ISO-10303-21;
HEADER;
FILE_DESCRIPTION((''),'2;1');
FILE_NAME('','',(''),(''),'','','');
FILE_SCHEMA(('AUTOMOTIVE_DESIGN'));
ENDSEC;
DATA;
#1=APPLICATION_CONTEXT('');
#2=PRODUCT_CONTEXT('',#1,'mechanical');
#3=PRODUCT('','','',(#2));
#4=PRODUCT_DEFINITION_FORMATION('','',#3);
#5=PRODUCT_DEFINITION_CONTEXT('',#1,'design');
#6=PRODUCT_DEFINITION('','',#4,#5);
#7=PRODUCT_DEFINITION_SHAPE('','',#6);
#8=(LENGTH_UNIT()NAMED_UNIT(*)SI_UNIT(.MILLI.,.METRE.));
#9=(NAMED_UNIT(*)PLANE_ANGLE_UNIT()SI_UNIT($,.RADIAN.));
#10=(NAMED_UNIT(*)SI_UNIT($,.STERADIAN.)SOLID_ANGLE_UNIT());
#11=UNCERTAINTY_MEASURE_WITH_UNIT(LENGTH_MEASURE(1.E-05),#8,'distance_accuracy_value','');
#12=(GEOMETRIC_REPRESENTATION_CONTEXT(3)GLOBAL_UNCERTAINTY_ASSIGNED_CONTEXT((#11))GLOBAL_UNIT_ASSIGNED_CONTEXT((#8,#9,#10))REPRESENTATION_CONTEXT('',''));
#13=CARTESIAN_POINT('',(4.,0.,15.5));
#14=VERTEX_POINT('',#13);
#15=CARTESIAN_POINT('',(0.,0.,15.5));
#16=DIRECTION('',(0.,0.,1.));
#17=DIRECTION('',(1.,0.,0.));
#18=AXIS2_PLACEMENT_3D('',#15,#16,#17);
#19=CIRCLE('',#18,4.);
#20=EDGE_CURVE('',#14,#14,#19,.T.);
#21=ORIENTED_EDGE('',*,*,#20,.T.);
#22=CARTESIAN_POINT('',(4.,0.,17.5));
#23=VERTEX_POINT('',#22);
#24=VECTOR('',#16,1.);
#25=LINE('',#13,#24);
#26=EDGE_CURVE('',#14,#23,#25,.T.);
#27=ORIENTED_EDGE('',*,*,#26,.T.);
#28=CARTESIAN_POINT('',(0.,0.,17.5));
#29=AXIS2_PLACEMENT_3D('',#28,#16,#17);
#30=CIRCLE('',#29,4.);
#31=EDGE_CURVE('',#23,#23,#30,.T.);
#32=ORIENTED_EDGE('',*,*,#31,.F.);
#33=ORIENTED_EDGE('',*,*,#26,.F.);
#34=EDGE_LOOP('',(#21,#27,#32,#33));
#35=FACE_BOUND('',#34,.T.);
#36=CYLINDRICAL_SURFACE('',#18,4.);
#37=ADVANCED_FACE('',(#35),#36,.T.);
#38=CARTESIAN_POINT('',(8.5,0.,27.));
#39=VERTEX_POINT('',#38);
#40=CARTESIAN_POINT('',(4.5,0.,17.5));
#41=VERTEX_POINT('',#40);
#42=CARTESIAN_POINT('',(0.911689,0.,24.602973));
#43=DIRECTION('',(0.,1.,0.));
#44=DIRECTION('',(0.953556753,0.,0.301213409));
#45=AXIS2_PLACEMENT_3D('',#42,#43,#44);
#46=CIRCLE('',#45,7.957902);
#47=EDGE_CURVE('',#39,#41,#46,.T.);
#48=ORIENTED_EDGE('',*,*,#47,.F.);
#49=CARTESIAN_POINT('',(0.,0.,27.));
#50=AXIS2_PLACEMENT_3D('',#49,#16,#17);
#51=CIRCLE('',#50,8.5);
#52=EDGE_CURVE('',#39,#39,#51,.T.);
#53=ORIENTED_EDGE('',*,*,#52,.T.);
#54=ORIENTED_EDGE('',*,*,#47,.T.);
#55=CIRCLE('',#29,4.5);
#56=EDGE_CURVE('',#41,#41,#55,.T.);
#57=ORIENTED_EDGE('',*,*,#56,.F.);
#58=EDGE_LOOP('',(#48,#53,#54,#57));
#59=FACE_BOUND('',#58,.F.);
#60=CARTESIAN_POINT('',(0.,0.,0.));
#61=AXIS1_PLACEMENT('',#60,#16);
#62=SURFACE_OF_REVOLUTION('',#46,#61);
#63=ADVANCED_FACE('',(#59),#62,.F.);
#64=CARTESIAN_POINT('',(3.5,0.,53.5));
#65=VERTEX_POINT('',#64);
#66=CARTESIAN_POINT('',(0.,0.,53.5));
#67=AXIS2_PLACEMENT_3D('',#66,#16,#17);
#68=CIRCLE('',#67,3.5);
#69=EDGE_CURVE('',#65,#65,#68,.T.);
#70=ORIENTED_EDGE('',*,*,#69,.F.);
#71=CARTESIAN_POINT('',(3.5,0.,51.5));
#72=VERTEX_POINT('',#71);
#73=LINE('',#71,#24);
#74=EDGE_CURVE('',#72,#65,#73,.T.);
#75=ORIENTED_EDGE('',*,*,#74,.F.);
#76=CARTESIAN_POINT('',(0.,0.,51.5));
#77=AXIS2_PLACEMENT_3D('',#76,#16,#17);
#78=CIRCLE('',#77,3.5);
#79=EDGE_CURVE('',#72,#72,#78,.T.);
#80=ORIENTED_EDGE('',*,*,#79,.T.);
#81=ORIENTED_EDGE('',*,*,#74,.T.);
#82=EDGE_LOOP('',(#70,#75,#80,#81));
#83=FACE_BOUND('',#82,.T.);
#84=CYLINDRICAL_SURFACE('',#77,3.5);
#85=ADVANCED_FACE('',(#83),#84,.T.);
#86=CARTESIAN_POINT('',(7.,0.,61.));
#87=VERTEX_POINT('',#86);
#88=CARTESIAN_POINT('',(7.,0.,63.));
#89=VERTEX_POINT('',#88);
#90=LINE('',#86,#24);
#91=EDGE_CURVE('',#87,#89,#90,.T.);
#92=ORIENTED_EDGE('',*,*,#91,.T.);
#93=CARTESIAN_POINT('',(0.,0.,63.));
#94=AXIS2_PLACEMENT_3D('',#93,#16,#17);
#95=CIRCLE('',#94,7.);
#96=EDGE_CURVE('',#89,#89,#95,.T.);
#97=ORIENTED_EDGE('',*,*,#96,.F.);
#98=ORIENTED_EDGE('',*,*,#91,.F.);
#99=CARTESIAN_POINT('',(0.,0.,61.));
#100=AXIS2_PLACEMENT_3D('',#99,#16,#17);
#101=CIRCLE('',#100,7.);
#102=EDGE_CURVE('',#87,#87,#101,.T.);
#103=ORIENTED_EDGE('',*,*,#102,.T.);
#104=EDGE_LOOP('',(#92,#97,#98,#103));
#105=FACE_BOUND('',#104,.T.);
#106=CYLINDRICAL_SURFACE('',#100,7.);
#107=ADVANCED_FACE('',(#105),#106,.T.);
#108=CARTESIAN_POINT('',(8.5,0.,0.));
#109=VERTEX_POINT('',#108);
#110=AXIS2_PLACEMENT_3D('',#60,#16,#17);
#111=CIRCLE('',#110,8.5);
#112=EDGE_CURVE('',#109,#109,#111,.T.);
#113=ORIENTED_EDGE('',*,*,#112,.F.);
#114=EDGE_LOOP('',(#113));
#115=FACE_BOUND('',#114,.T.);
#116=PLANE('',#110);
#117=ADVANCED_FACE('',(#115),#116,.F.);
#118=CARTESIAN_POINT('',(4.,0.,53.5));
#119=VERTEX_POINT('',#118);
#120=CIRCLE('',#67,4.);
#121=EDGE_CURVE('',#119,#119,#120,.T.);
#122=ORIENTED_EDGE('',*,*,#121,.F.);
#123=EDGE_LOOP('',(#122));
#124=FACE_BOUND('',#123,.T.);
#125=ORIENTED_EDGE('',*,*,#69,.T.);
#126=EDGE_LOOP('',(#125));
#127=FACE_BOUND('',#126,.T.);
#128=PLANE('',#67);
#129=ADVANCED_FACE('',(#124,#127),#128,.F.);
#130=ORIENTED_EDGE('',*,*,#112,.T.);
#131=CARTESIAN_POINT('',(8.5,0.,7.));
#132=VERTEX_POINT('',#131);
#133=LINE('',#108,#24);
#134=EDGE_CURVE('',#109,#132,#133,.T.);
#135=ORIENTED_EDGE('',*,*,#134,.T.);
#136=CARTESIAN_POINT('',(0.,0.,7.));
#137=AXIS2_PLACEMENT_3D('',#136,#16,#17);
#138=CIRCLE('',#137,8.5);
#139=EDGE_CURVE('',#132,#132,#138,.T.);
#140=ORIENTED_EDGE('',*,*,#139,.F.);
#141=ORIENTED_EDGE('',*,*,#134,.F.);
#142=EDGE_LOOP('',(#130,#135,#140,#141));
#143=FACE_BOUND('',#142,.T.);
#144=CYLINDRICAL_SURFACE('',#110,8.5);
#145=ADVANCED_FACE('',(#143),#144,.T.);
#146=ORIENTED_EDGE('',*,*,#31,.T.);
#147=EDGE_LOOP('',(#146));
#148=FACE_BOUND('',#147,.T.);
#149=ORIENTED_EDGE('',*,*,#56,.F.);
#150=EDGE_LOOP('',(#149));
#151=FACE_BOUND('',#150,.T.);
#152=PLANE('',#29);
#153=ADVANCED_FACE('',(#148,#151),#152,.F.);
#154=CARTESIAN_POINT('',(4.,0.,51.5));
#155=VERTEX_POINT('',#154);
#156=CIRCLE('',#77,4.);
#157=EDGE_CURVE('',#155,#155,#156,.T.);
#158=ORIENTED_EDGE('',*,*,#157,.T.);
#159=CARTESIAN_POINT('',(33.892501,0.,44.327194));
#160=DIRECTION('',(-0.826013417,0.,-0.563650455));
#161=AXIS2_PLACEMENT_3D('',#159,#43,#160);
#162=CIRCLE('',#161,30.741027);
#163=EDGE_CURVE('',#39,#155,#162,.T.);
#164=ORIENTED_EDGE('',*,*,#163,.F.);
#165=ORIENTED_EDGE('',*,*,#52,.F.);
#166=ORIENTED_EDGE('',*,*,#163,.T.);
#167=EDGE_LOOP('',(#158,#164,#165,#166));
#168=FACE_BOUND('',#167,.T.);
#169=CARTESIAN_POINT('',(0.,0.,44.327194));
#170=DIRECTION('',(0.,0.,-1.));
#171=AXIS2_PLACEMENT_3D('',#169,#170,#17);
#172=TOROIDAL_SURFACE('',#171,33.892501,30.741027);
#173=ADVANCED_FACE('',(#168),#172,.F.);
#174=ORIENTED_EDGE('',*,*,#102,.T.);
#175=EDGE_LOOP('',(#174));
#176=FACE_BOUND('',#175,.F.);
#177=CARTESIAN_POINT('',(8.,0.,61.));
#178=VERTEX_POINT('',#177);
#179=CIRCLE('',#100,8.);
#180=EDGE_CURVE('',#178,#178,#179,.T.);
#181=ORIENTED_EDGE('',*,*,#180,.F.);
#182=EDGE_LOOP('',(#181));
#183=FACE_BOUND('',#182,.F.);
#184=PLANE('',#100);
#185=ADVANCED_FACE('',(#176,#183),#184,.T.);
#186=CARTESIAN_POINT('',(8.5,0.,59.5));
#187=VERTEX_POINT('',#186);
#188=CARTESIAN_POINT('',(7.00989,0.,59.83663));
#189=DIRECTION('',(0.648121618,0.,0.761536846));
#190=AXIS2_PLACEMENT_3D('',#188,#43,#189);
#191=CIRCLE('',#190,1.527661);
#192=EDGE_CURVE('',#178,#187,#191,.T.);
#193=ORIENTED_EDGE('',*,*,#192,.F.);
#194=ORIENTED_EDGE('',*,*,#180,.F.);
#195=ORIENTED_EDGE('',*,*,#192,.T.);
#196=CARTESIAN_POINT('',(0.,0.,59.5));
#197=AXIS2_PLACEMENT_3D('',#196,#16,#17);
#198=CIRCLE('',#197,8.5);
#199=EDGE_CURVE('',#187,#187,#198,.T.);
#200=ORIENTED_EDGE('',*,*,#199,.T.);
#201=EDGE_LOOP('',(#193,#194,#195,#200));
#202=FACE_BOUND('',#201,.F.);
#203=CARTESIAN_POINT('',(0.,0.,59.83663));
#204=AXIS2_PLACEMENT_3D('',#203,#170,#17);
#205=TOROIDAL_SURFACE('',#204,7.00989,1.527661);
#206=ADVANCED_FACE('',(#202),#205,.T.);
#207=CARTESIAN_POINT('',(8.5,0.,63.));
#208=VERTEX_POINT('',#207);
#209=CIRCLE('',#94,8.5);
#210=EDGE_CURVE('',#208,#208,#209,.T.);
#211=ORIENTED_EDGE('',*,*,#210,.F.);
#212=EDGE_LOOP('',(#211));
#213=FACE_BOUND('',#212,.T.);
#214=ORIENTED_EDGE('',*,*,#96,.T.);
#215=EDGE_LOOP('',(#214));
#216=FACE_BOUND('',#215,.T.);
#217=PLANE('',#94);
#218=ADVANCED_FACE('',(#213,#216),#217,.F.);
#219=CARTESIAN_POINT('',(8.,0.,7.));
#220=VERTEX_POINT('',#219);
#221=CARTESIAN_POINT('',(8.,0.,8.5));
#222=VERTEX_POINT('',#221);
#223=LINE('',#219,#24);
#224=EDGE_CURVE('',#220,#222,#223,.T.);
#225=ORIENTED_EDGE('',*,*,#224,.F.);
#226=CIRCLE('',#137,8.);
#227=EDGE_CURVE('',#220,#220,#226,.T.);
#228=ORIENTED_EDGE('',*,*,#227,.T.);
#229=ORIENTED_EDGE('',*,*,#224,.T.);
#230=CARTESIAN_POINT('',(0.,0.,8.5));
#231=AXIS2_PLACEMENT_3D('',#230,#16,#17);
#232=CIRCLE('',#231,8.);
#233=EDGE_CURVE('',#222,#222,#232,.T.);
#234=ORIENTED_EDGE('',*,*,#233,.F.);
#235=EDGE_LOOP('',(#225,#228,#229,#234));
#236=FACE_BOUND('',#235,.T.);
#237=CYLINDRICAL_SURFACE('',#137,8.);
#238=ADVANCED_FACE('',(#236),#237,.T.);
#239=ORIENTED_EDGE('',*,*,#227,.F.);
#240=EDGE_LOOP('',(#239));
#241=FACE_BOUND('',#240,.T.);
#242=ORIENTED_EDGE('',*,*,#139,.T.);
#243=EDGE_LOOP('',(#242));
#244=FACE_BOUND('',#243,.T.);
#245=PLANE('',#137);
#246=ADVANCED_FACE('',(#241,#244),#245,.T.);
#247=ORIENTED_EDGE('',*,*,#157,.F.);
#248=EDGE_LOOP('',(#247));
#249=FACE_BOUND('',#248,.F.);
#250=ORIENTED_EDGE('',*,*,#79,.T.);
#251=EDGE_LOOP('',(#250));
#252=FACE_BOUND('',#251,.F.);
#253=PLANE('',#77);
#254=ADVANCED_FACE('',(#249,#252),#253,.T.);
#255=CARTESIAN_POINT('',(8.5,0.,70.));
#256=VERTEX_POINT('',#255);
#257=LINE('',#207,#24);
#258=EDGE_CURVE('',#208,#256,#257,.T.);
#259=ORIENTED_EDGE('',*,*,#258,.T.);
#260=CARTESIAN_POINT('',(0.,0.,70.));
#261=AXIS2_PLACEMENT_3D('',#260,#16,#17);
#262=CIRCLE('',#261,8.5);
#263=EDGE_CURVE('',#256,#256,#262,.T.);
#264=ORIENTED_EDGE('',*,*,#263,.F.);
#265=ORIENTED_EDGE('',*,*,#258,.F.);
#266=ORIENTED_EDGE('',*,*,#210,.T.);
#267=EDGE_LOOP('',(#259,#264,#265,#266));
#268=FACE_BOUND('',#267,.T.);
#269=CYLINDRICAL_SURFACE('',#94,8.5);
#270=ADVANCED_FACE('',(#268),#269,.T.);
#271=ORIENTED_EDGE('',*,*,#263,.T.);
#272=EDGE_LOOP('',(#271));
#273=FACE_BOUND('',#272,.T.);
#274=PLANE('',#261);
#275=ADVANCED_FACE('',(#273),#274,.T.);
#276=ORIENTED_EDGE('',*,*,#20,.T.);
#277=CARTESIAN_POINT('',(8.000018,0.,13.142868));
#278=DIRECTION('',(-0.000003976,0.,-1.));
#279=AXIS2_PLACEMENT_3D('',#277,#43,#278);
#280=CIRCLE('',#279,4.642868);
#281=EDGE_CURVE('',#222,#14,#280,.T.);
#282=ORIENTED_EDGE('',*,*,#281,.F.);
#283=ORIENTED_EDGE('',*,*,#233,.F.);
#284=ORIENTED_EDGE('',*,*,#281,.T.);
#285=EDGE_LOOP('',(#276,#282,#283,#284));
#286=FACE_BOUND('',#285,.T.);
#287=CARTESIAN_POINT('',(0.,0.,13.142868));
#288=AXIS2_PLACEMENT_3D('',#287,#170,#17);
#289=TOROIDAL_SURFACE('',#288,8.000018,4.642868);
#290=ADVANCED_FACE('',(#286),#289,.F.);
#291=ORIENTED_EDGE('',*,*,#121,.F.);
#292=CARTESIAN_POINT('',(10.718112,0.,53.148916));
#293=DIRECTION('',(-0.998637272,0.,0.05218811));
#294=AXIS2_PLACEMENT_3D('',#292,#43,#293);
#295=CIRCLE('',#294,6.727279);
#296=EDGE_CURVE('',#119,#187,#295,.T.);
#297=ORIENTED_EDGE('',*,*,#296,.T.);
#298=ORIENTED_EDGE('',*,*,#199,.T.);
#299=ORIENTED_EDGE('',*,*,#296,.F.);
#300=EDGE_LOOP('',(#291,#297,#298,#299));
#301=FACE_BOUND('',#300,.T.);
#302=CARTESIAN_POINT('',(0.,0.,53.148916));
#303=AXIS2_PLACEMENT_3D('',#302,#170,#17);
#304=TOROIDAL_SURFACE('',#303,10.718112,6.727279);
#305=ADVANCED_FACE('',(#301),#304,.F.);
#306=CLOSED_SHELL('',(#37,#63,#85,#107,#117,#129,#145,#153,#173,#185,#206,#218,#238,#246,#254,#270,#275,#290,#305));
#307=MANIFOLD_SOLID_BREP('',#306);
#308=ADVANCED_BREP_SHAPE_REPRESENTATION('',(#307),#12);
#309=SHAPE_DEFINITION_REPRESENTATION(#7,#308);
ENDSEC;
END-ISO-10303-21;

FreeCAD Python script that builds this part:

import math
import FreeCAD as App
import Part
import Sketcher
from FreeCAD import Vector
Q = App.Units.Quantity

doc = App.newDocument("Part")
body = doc.addObject("PartDesign::Body", "Body")

# Sketch on XZ plane
sketch1 = body.newObject("Sketcher::SketchObject", "Sketch")
sketch1.AttachmentSupport = (doc.getObject("XZ_Plane"), [""])
sketch1.MapMode = "FlatFace"
sketch1.addGeometry([
    Part.LineSegment(Vector(8.5, 0, 0), Vector(0, 0, 0)),  # 0
    Part.LineSegment(Vector(0, 0, 0), Vector(0, 70, 0)),  # 1
    Part.LineSegment(Vector(0, 70, 0), Vector(8.5, 70, 0)),  # 2
    Part.LineSegment(Vector(8.5, 70, 0), Vector(8.5, 63, 0)),  # 3
    Part.LineSegment(Vector(8.5, 63, 0), Vector(7, 63, 0)),  # 4
    Part.LineSegment(Vector(7, 63, 0), Vector(7, 61, 0)),  # 5
    Part.LineSegment(Vector(7, 61, 0), Vector(8, 61, 0)),  # 6
    Part.ArcOfCircle(Part.Circle(Vector(7.0099, 59.8366, 0), Vector(0, 0, 1), 1.527677), math.radians(-12.728958), math.radians(49.600886)),  # 7
    Part.ArcOfCircle(Part.Circle(Vector(10.7181, 53.1489, 0), Vector(0, 0, 1), 6.727268), math.radians(109.251581), math.radians(177.008341)),  # 8
    Part.LineSegment(Vector(4, 53.5, 0), Vector(3.5, 53.5, 0)),  # 9
    Part.LineSegment(Vector(3.5, 53.5, 0), Vector(3.5, 51.5, 0)),  # 10
    Part.LineSegment(Vector(3.5, 51.5, 0), Vector(4, 51.5, 0)),  # 11
    Part.ArcOfCircle(Part.Circle(Vector(33.8925, 44.3272, 0), Vector(0, 0, 1), 30.74103), math.radians(166.506804), math.radians(214.308639)),  # 12
    Part.ArcOfCircle(Part.Circle(Vector(0.9117, 24.603, 0), Vector(0, 0, 1), 7.957883), math.radians(-63.197966), math.radians(17.530338)),  # 13
    Part.LineSegment(Vector(4.5, 17.5, 0), Vector(4, 17.5, 0)),  # 14
    Part.LineSegment(Vector(4, 17.5, 0), Vector(4, 15.5, 0)),  # 15
    Part.ArcOfCircle(Part.Circle(Vector(8, 13.1429, 0), Vector(0, 0, 1), 4.6429), math.radians(149.490218), math.radians(270)),  # 16
    Part.LineSegment(Vector(8, 8.5, 0), Vector(8, 7, 0)),  # 17
    Part.LineSegment(Vector(8, 7, 0), Vector(8.5, 7, 0)),  # 18
    Part.LineSegment(Vector(8.5, 7, 0), Vector(8.5, 0, 0)),  # 19
], False)
sketch1.addConstraint([
    Sketcher.Constraint("Coincident", 0, 2, 1, 1),
    Sketcher.Constraint("Coincident", 1, 2, 2, 1),
    Sketcher.Constraint("Coincident", 2, 2, 3, 1),
    Sketcher.Constraint("Coincident", 3, 2, 4, 1),
    Sketcher.Constraint("Coincident", 4, 2, 5, 1),
    Sketcher.Constraint("Coincident", 5, 2, 6, 1),
    Sketcher.Constraint("Coincident", 6, 2, 7, 2),
    Sketcher.Constraint("Coincident", 7, 1, 8, 1),
    Sketcher.Constraint("Coincident", 8, 2, 9, 1),
    Sketcher.Constraint("Coincident", 9, 2, 10, 1),
    Sketcher.Constraint("Coincident", 10, 2, 11, 1),
    Sketcher.Constraint("Coincident", 11, 2, 12, 1),
    Sketcher.Constraint("Coincident", 12, 2, 13, 2),
    Sketcher.Constraint("Coincident", 13, 1, 14, 1),
    Sketcher.Constraint("Coincident", 14, 2, 15, 1),
    Sketcher.Constraint("Coincident", 15, 2, 16, 1),
    Sketcher.Constraint("Coincident", 16, 2, 17, 1),
    Sketcher.Constraint("Coincident", 17, 2, 18, 1),
    Sketcher.Constraint("Coincident", 18, 2, 19, 1),
    Sketcher.Constraint("Coincident", 19, 2, 0, 1),
    Sketcher.Constraint("Horizontal", 0),
    Sketcher.Constraint("Vertical", 1),
    Sketcher.Constraint("Horizontal", 2),
    Sketcher.Constraint("Vertical", 3),
    Sketcher.Constraint("Horizontal", 4),
    Sketcher.Constraint("Vertical", 5),
    Sketcher.Constraint("Horizontal", 6),
    Sketcher.Constraint("Horizontal", 9),
    Sketcher.Constraint("Vertical", 10),
    Sketcher.Constraint("Horizontal", 11),
    Sketcher.Constraint("Horizontal", 14),
    Sketcher.Constraint("Vertical", 15),
    Sketcher.Constraint("Vertical", 17),
    Sketcher.Constraint("Horizontal", 18),
    Sketcher.Constraint("Vertical", 19),
    Sketcher.Constraint("Coincident", 0, 2, -1, 1),
    Sketcher.Constraint("Vertical", 16, 3, 6, 2),
    Sketcher.Constraint("Vertical", 3, 2, 7, 1),
    Sketcher.Constraint("Vertical", 8, 2, 11, 2),
    Sketcher.Constraint("Vertical", 7, 1, 12, 2),
    Sketcher.Constraint("Vertical", 11, 2, 14, 2),
    Sketcher.Constraint("Vertical", 6, 2, 16, 2),
    Sketcher.Constraint("Vertical", 12, 2, 18, 2),
    Sketcher.Constraint("Equal", 11, 14),
    Sketcher.Constraint("Equal", 14, 18),
    Sketcher.Constraint("Equal", 5, 10),
    Sketcher.Constraint("Equal", 10, 15),
    Sketcher.Constraint("Equal", 4, 17),
    Sketcher.Constraint("Equal", 3, 19),
    Sketcher.Constraint("DistanceY", 1, 1, 1, 2, Q("70 mm")),
    Sketcher.Constraint("DistanceY", 3, 2, 3, 1, Q("7 mm")),
    Sketcher.Constraint("DistanceY", 5, 2, 5, 1, Q("2 mm")),
    Sketcher.Constraint("DistanceX", 4, 2, 4, 1, Q("1.5 mm")),
    Sketcher.Constraint("DistanceX", -1, 1, 4, 2, Q("7 mm")),
    Sketcher.Constraint("DistanceY", 8, 2, 7, 1, Q("6 mm")),
    Sketcher.Constraint("DistanceY", 16, 2, 15, 2, Q("7 mm")),
    Sketcher.Constraint("DistanceY", 7, 1, 6, 2, Q("1.5 mm")),
    Sketcher.Constraint("DistanceY", 12, 2, 11, 2, Q("24.5 mm")),
    Sketcher.Constraint("DistanceX", 6, 1, 6, 2, Q("1 mm")),
    Sketcher.Constraint("DistanceX", -1, 1, 8, 2, Q("4 mm")),
    Sketcher.Constraint("Radius", 12, Q("30.741 mm")),
    Sketcher.Constraint("Radius", 13, Q("7.958 mm")),
    Sketcher.Constraint("Radius", 7, Q("1.5277 mm")),
    Sketcher.Constraint("Radius", 8, Q("6.7273 mm")),
])
revolution = body.newObject("PartDesign::Revolution", "Revolution")
revolution.Profile = sketch1
revolution.ReferenceAxis = (sketch1, ["V_Axis"])
revolution.Angle = 360

doc.recompute()
